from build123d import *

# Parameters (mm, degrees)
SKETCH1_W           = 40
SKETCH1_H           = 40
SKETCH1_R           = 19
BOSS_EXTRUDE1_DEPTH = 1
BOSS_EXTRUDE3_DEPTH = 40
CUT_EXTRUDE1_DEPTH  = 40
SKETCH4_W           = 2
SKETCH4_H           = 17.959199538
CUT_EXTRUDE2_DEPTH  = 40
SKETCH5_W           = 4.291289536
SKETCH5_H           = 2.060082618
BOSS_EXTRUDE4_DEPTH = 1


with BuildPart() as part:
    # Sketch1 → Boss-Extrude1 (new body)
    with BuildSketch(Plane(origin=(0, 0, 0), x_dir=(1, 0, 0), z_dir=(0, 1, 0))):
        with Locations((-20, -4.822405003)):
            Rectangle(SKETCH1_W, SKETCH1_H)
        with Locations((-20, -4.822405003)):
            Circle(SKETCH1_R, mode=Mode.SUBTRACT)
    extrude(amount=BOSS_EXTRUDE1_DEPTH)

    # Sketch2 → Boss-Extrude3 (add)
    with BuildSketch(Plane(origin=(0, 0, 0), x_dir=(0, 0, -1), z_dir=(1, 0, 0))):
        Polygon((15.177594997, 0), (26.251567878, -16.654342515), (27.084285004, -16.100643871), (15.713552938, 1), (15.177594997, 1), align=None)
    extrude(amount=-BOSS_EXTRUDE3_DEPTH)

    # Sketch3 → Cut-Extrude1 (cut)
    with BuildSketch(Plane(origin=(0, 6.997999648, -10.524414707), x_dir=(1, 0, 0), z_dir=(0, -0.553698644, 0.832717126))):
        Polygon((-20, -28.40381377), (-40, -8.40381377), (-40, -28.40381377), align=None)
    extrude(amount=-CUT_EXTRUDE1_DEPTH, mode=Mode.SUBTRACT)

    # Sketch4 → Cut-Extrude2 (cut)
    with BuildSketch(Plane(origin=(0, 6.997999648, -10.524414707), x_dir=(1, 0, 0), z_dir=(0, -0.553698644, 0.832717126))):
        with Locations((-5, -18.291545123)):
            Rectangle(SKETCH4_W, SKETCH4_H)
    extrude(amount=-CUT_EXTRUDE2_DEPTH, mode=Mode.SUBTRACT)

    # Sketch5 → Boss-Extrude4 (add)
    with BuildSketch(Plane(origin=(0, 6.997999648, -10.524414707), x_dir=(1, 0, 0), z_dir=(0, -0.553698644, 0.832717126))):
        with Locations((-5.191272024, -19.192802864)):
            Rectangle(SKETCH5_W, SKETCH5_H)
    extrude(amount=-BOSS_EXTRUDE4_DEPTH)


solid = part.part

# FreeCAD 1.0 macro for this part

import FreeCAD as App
import Part
import Sketcher

doc = App.newDocument("Part")
body = doc.addObject("PartDesign::Body", "Body")

# Sketch on XZ plane
sketch1 = body.newObject("Sketcher::SketchObject", "Sketch")
sketch1.AttachmentSupport = (doc.getObject("XZ_Plane"), [""])
sketch1.MapMode = "FlatFace"
sketch1.addGeometry([
    Part.LineSegment(App.Vector(-40, -15.177595, 0), App.Vector(-40, 24.822405, 0)),  # 0
    Part.LineSegment(App.Vector(-40, 24.822405, 0), App.Vector(0, 24.822405, 0)),  # 1
    Part.LineSegment(App.Vector(0, 24.822405, 0), App.Vector(0, -15.177595, 0)),  # 2
    Part.LineSegment(App.Vector(0, -15.177595, 0), App.Vector(-40, -15.177595, 0)),  # 3
    Part.Circle(App.Vector(-20, 4.822405, 0), App.Vector(0, 0, 1), 19),  # 4
], False)
sketch1.addConstraint([
    Sketcher.Constraint("Coincident", 0, 2, 1, 1),
    Sketcher.Constraint("Coincident", 1, 2, 2, 1),
    Sketcher.Constraint("Coincident", 2, 2, 3, 1),
    Sketcher.Constraint("Coincident", 3, 2, 0, 1),
    Sketcher.Constraint("Vertical", 0),
    Sketcher.Constraint("Horizontal", 1),
    Sketcher.Constraint("Vertical", 2),
    Sketcher.Constraint("Horizontal", 3),
    Sketcher.Constraint("PointOnObject", 1, 2, -2),
    Sketcher.Constraint("Equal", 3, 0),
    Sketcher.Constraint("Diameter", 4, 38.0),
    Sketcher.Constraint("DistanceX", 1, 1, 1, 2, 40.0),
    Sketcher.Constraint("DistanceX", 4, 3, -1, 1, 20.0),
    Sketcher.Constraint("DistanceY", 4, 3, 0, 2, 20.0),
    Sketcher.Constraint("DistanceY", -1, 1, 4, 3, 4.822405),
])
pad1 = body.newObject("PartDesign::Pad", "Pad")
pad1.Profile = sketch1
pad1.Length = 1
pad1.Reversed = True

# Sketch on YZ plane
sketch2 = body.newObject("Sketcher::SketchObject", "Sketch001")
sketch2.AttachmentSupport = (doc.getObject("YZ_Plane"), [""])
sketch2.MapMode = "FlatFace"
sketch2.addGeometry([
    Part.LineSegment(App.Vector(0, -15.177595, 0), App.Vector(-16.654343, -26.251568, 0)),  # 0
    Part.LineSegment(App.Vector(-16.654343, -26.251568, 0), App.Vector(-16.100644, -27.084285, 0)),  # 1
    Part.LineSegment(App.Vector(-16.100644, -27.084285, 0), App.Vector(1, -15.713553, 0)),  # 2
    Part.LineSegment(App.Vector(1, -15.713553, 0), App.Vector(1, -15.177595, 0)),  # 3
    Part.LineSegment(App.Vector(1, -15.177595, 0), App.Vector(0, -15.177595, 0)),  # 4
], False)
sketch2.addConstraint([
    Sketcher.Constraint("Coincident", 0, 2, 1, 1),
    Sketcher.Constraint("Coincident", 1, 2, 2, 1),
    Sketcher.Constraint("Coincident", 2, 2, 3, 1),
    Sketcher.Constraint("Coincident", 3, 2, 4, 1),
    Sketcher.Constraint("Coincident", 4, 2, 0, 1),
    Sketcher.Constraint("Vertical", 3),
    Sketcher.Constraint("Horizontal", 4),
    Sketcher.Constraint("PointOnObject", 4, 2, -2),
    Sketcher.Constraint("Perpendicular", 0, 1),
    Sketcher.Constraint("Perpendicular", 1, 2),
    Sketcher.Constraint("DistanceX", 4, 2, 4, 1, 1.0),
    Sketcher.Constraint("Distance", 0, 20.0),
    Sketcher.Constraint("Distance", 1, 1.0),
    Sketcher.Constraint("DistanceX", 0, 2, 1, 2, 0.553699),
    Sketcher.Constraint("DistanceY", 0, 2, -1, 1, 26.251568),
])
pad2 = body.newObject("PartDesign::Pad", "Pad001")
pad2.Profile = sketch2
pad2.Length = 40
pad2.Reversed = True

# Sketch on an angled plane
sketch3 = body.newObject("Sketcher::SketchObject", "Sketch002")
sketch3.Placement = App.Placement(App.Vector(0, 6.998, -10.524415), App.Rotation(App.Vector(1, 0, 0), App.Vector(0, 0.832717126, 0.553698644), App.Vector(0, -0.553698644, 0.832717126), "ZXY"))
sketch3.addGeometry([
    Part.LineSegment(App.Vector(-20, -28.403814, 0), App.Vector(-40, -8.403814, 0)),
    Part.LineSegment(App.Vector(-40, -8.403814, 0), App.Vector(-40, -28.403814, 0)),
    Part.LineSegment(App.Vector(-40, -28.403814, 0), App.Vector(-20, -28.403814, 0)),
], False)
sketch3.addConstraint([
    Sketcher.Constraint("Coincident", 0, 2, 1, 1),
    Sketcher.Constraint("Coincident", 1, 2, 2, 1),
    Sketcher.Constraint("Coincident", 2, 2, 0, 1),
    Sketcher.Constraint("Vertical", 1),
    Sketcher.Constraint("Horizontal", 2),
    Sketcher.Constraint("Equal", 2, 1),
    Sketcher.Constraint("DistanceX", 2, 1, 2, 2, 20.0),
    Sketcher.Constraint("DistanceX", 0, 2, -1, 1, 40.0),
    Sketcher.Constraint("DistanceY", 0, 2, -1, 1, 8.403814),
])
pocket1 = body.newObject("PartDesign::Pocket", "Pocket")
pocket1.Profile = sketch3
pocket1.Length = 40

# Sketch on an angled plane
sketch4 = body.newObject("Sketcher::SketchObject", "Sketch003")
sketch4.Placement = App.Placement(App.Vector(0, 6.998, -10.524415), App.Rotation(App.Vector(1, 0, 0), App.Vector(0, 0.832717126, 0.553698644), App.Vector(0, -0.553698644, 0.832717126), "ZXY"))
sketch4.addGeometry([
    Part.LineSegment(App.Vector(-6, -9.311945, 0), App.Vector(-6, -27.271145, 0)),
    Part.LineSegment(App.Vector(-6, -27.271145, 0), App.Vector(-4, -27.271145, 0)),
    Part.LineSegment(App.Vector(-4, -27.271145, 0), App.Vector(-4, -9.311945, 0)),
    Part.LineSegment(App.Vector(-4, -9.311945, 0), App.Vector(-6, -9.311945, 0)),
], False)
sketch4.addConstraint([
    Sketcher.Constraint("Coincident", 0, 2, 1, 1),
    Sketcher.Constraint("Coincident", 1, 2, 2, 1),
    Sketcher.Constraint("Coincident", 2, 2, 3, 1),
    Sketcher.Constraint("Coincident", 3, 2, 0, 1),
    Sketcher.Constraint("Vertical", 0),
    Sketcher.Constraint("Horizontal", 1),
    Sketcher.Constraint("Vertical", 2),
    Sketcher.Constraint("Horizontal", 3),
    Sketcher.Constraint("DistanceX", 1, 1, 1, 2, 2.0),
    Sketcher.Constraint("DistanceX", 0, 2, -1, 1, 6.0),
    Sketcher.Constraint("DistanceY", 0, 2, 0, 1, 17.9592),
    Sketcher.Constraint("DistanceY", 0, 2, -1, 1, 27.271145),
])
pocket2 = body.newObject("PartDesign::Pocket", "Pocket001")
pocket2.Profile = sketch4
pocket2.Length = 40

# Sketch on an angled plane
sketch5 = body.newObject("Sketcher::SketchObject", "Sketch004")
sketch5.Placement = App.Placement(App.Vector(0, 6.998, -10.524415), App.Rotation(App.Vector(1, 0, 0), App.Vector(0, 0.832717126, 0.553698644), App.Vector(0, -0.553698644, 0.832717126), "ZXY"))
sketch5.addGeometry([
    Part.LineSegment(App.Vector(-7.336917, -18.162762, 0), App.Vector(-7.336917, -20.222844, 0)),
    Part.LineSegment(App.Vector(-7.336917, -20.222844, 0), App.Vector(-3.045627, -20.222844, 0)),
    Part.LineSegment(App.Vector(-3.045627, -20.222844, 0), App.Vector(-3.045627, -18.162762, 0)),
    Part.LineSegment(App.Vector(-3.045627, -18.162762, 0), App.Vector(-7.336917, -18.162762, 0)),
], False)
sketch5.addConstraint([
    Sketcher.Constraint("Coincident", 0, 2, 1, 1),
    Sketcher.Constraint("Coincident", 1, 2, 2, 1),
    Sketcher.Constraint("Coincident", 2, 2, 3, 1),
    Sketcher.Constraint("Coincident", 3, 2, 0, 1),
    Sketcher.Constraint("Vertical", 0),
    Sketcher.Constraint("Horizontal", 1),
    Sketcher.Constraint("Vertical", 2),
    Sketcher.Constraint("Horizontal", 3),
    Sketcher.Constraint("DistanceX", 1, 1, 1, 2, 4.29129),
    Sketcher.Constraint("DistanceY", 0, 2, 0, 1, 2.060083),
    Sketcher.Constraint("DistanceY", 2, 2, -1, 1, 18.162762),
    Sketcher.Constraint("DistanceX", 0, 2, -1, 1, 7.336917),
])
pad3 = body.newObject("PartDesign::Pad", "Pad002")
pad3.Profile = sketch5
pad3.Length = 1
pad3.Reversed = True

doc.recompute()
